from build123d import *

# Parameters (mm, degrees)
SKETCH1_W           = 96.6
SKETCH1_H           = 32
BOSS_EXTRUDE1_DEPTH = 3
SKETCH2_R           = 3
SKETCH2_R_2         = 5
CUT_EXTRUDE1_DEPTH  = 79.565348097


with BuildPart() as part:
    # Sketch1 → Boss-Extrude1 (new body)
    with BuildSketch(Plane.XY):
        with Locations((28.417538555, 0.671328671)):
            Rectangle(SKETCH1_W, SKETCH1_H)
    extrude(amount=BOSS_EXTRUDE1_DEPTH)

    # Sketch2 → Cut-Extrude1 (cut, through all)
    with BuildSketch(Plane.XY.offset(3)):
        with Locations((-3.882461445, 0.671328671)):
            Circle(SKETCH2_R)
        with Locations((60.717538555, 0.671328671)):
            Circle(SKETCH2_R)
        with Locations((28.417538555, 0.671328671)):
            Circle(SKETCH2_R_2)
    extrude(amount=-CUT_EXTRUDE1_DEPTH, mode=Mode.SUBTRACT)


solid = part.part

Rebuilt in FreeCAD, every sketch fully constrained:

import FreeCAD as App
import Part
import Sketcher


def add_polygon(sketch, points):
    """Adds a closed chain of lines whose ends are joined by coincident constraints."""
    first, n = sketch.GeometryCount, len(points)
    for a, b in zip(points, points[1:] + points[:1]):
        sketch.addGeometry(Part.LineSegment(App.Vector(*a, 0), App.Vector(*b, 0)), False)
    for i in range(n):
        sketch.addConstraint(Sketcher.Constraint("Coincident", first + i, 2, first + (i + 1) % n, 1))

doc = App.newDocument("Part")
body = doc.addObject("PartDesign::Body", "Body")

sketch1 = doc.addObject("Sketcher::SketchObject", "Sketch")
body.addObject(sketch1)
sketch1.AttachmentSupport = (doc.XY_Plane, [""])
sketch1.MapMode = "FlatFace"
add_polygon(sketch1, [(-20, 17), (-20, -15), (77, -15), (77, 17)])
sketch1.addConstraint([
    Sketcher.Constraint("Vertical", 0),
    Sketcher.Constraint("Horizontal", 1),
    Sketcher.Constraint("Vertical", 2),
    Sketcher.Constraint("Horizontal", 3),
    Sketcher.Constraint("DistanceY", 0, 2, 0, 1, 32.0),
    Sketcher.Constraint("DistanceX", 1, 1, 1, 2, 96.6),
    Sketcher.Constraint("DistanceX", 0, 2, -1, 1, 19.882461),
    Sketcher.Constraint("DistanceY", 0, 2, -1, 1, 15.328671),
])
pad1 = doc.addObject("PartDesign::Pad", "Pad")
body.addObject(pad1)
pad1.Profile = sketch1
pad1.Length = 3

sketch2 = doc.addObject("Sketcher::SketchObject", "Sketch001")
body.addObject(sketch2)
sketch2.AttachmentSupport = (doc.XY_Plane, [""])
sketch2.MapMode = "FlatFace"
sketch2.AttachmentOffset = App.Placement(App.Vector(0, 0, 3), App.Rotation())
sketch2.addGeometry([
    Part.Circle(App.Vector(-3.9, 0.7, 0), App.Vector(0, 0, 1), 3),
    Part.Circle(App.Vector(60.7, 0.7, 0), App.Vector(0, 0, 1), 3),
    Part.Circle(App.Vector(28.4, 0.7, 0), App.Vector(0, 0, 1), 5),
], False)
sketch2.addConstraint([
    Sketcher.Constraint("Equal", 0, 1),
    Sketcher.Constraint("Horizontal", 0, 3, 1, 3),
    Sketcher.Constraint("Horizontal", 1, 3, 2, 3),
    Sketcher.Constraint("Diameter", 0, 6.0),
    Sketcher.Constraint("Diameter", 2, 10.0),
    Sketcher.Constraint("DistanceX", 0, 3, 1, 3, 64.6),
    Sketcher.Constraint("DistanceX", 0, 3, 2, 3, 32.3),
    Sketcher.Constraint("DistanceX", 0, 3, -1, 1, 3.882461),
    Sketcher.Constraint("DistanceY", -1, 1, 0, 3, 0.671329),
])
pocket1 = doc.addObject("PartDesign::Pocket", "Pocket")
body.addObject(pocket1)
pocket1.Profile = sketch2
pocket1.Type = "ThroughAll"

doc.recompute()
